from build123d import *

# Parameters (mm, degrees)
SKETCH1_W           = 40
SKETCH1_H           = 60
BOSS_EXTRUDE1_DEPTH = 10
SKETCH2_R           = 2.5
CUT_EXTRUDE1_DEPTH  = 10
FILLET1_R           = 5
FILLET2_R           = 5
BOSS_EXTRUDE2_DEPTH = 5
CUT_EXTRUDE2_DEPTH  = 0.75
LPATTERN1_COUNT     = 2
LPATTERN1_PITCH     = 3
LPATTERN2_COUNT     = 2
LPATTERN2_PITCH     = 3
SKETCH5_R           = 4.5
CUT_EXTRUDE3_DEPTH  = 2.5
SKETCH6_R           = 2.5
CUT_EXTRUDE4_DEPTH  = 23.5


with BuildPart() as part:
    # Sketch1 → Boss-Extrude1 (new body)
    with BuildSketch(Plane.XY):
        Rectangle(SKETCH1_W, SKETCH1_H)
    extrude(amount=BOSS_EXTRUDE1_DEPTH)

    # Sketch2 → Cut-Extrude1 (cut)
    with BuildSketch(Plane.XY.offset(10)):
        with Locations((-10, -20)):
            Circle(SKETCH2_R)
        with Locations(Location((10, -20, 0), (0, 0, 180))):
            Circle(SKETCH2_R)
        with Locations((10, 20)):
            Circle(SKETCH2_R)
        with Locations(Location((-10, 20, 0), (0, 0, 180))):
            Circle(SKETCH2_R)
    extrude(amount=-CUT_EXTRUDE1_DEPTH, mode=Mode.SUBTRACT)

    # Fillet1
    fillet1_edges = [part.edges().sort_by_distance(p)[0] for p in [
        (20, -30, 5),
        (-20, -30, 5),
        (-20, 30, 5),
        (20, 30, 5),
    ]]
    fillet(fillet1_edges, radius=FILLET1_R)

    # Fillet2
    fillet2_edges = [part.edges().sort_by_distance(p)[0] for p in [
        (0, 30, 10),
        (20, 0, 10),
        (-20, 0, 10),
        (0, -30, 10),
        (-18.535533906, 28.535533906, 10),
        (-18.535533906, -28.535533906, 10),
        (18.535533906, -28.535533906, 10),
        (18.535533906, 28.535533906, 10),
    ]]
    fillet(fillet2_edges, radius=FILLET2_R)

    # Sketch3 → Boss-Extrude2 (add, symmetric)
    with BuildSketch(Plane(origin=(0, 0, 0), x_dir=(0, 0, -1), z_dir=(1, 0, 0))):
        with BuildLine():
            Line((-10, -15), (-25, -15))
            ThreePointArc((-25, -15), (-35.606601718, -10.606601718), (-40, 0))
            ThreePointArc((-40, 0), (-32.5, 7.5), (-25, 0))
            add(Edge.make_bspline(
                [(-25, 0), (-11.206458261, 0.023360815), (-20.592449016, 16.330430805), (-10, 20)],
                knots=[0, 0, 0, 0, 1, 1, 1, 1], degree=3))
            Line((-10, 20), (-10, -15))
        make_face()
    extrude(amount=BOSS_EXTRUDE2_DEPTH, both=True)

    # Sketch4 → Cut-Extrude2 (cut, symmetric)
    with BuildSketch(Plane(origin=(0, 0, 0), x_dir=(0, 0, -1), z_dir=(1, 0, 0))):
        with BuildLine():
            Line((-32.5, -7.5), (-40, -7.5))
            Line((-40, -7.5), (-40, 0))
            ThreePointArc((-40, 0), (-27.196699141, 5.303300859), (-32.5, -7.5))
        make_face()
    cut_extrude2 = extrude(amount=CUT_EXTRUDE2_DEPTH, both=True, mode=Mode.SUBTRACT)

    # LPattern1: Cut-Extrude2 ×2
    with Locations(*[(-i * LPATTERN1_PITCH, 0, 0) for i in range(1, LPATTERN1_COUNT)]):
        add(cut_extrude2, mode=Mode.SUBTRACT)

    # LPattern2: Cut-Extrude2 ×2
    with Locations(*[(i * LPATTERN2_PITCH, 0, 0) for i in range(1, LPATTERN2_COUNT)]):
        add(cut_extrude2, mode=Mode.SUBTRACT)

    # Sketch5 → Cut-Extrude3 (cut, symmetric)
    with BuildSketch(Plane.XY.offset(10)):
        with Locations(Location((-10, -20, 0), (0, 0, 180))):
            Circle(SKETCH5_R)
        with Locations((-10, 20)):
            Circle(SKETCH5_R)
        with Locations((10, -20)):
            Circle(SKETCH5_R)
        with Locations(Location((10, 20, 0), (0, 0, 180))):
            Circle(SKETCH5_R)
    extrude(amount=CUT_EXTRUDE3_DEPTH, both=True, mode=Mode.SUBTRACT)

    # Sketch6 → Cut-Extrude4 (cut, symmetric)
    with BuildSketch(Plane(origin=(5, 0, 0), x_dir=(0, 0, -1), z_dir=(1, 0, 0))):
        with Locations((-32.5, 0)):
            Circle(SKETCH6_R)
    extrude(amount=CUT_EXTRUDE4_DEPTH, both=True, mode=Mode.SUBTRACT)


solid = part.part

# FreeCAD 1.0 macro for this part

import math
import FreeCAD as App
import Part
import Sketcher
from FreeCAD import Vector
Q = App.Units.Quantity


def edges_at(feature, points):
    """Names of the edges that pass closest to the given points."""
    edges = feature.Shape.Edges
    near = lambda p: min(range(len(edges)), key=lambda i: edges[i].distToShape(Part.Vertex(*p))[0])
    return sorted({f"Edge{near(p) + 1}" for p in points})


def add_polygon(sketch, points):
    """Adds a closed chain of lines whose ends are joined by coincident constraints."""
    first, n = sketch.GeometryCount, len(points)
    for a, b in zip(points, points[1:] + points[:1]):
        sketch.addGeometry(Part.LineSegment(App.Vector(*a, 0), App.Vector(*b, 0)), False)
    for i in range(n):
        sketch.addConstraint(Sketcher.Constraint("Coincident", first + i, 2, first + (i + 1) % n, 1))

doc = App.newDocument("Part")
body = doc.addObject("PartDesign::Body", "Body")

sketch1 = body.newObject("Sketcher::SketchObject", "Sketch")
sketch1.AttachmentSupport = (doc.getObject("XY_Plane"), [""])
sketch1.MapMode = "FlatFace"
add_polygon(sketch1, [(-20, 30), (-20, -30), (20, -30), (20, 30)])
sketch1.addConstraint([
    Sketcher.Constraint("Vertical", 0),
    Sketcher.Constraint("Horizontal", 1),
    Sketcher.Constraint("Vertical", 2),
    Sketcher.Constraint("Horizontal", 3),
    Sketcher.Constraint("Symmetric", 0, 2, 2, 2, -1, 1),
    Sketcher.Constraint("DistanceX", 1, 1, 1, 2, Q("40 mm")),
    Sketcher.Constraint("DistanceY", 0, 2, 0, 1, Q("60 mm")),
])
pad1 = body.newObject("PartDesign::Pad", "Pad")
pad1.Profile = sketch1
pad1.Length = 10

sketch2 = body.newObject("Sketcher::SketchObject", "Sketch001")
sketch2.AttachmentSupport = (doc.getObject("XY_Plane"), [""])
sketch2.MapMode = "FlatFace"
sketch2.AttachmentOffset = App.Placement(Vector(0, 0, 10), App.Rotation())
sketch2.addGeometry([
    Part.Circle(Vector(-10, -20, 0), Vector(0, 0, 1), 2.5),
    Part.Circle(Vector(10, -20, 0), Vector(0, 0, 1), 2.5),
    Part.Circle(Vector(10, 20, 0), Vector(0, 0, 1), 2.5),
    Part.Circle(Vector(-10, 20, 0), Vector(0, 0, 1), 2.5),
], False)
sketch2.addConstraint([
    Sketcher.Constraint("Equal", 0, 1),
    Sketcher.Constraint("Equal", 1, 2),
    Sketcher.Constraint("Equal", 2, 3),
    Sketcher.Constraint("Symmetric", 0, 3, 2, 3, -1, 1),
    Sketcher.Constraint("Symmetric", 1, 3, 3, 3, -1, 1),
    Sketcher.Constraint("Symmetric", 0, 3, 1, 3, -2),
    Sketcher.Constraint("Diameter", 0, Q("5 mm")),
    Sketcher.Constraint("DistanceX", 0, 3, -1, 1, Q("10 mm")),
    Sketcher.Constraint("DistanceY", 0, 3, -1, 1, Q("20 mm")),
])
pocket1 = body.newObject("PartDesign::Pocket", "Pocket")
pocket1.Profile = sketch2
pocket1.Length = 10
doc.recompute()

fillet = body.newObject("PartDesign::Fillet", "Fillet")
fillet.Base = (pocket1, edges_at(pocket1, [
    (20, -30, 5),
    (-20, -30, 5),
    (-20, 30, 5),
    (20, 30, 5),
]))
fillet.Radius = 5
doc.recompute()

fillet2 = body.newObject("PartDesign::Fillet", "Fillet001")
fillet2.Base = (fillet, edges_at(fillet, [
    (0, 30, 10),
    (20, 0, 10),
    (-20, 0, 10),
    (0, -30, 10),
    (-18.536, 28.536, 10),
    (-18.536, -28.536, 10),
    (18.536, -28.536, 10),
    (18.536, 28.536, 10),
]))
fillet2.Radius = 5

sketch3 = body.newObject("Sketcher::SketchObject", "Sketch002")
sketch3.AttachmentSupport = (doc.getObject("YZ_Plane"), [""])
sketch3.MapMode = "FlatFace"
sketch3.addGeometry([
    Part.LineSegment(Vector(-15, 25, 0), Vector(-15, 10, 0)),
    Part.LineSegment(Vector(-15, 10, 0), Vector(20, 10, 0)),
    Part.BSplineCurve([Vector(0, 25, 0), Vector(0.023361, 11.206458, 0), Vector(16.330431, 20.592449, 0), Vector(20, 10, 0)], [4, 4], [0, 1], False, 3, [1, 1, 1, 1], False),
    Part.ArcOfCircle(Part.Circle(Vector(0, 32.5, 0), Vector(0, 0, 1), 7.5), math.radians(-90), math.radians(90)),
    Part.ArcOfCircle(Part.Circle(Vector(0, 25, 0), Vector(0, 0, 1), 15), math.radians(90), math.radians(180)),
], False)
sketch3.addConstraint([
    Sketcher.Constraint("Block", 2),
    Sketcher.Constraint("Coincident", 0, 2, 1, 1),
    Sketcher.Constraint("Coincident", 1, 2, 2, 2),
    Sketcher.Constraint("Coincident", 2, 1, 3, 1),
    Sketcher.Constraint("Tangent", 3, 2, 4, 1),
    Sketcher.Constraint("Tangent", 4, 2, 0, 1),
    Sketcher.Constraint("Vertical", 0),
    Sketcher.Constraint("Horizontal", 1),
    Sketcher.Constraint("PointOnObject", 3, 3, -2),
    Sketcher.Constraint("PointOnObject", 4, 3, -2),
    Sketcher.Constraint("Radius", 4, Q("15 mm")),
    Sketcher.Constraint("Radius", 3, Q("7.5 mm")),
])
pad2 = body.newObject("PartDesign::Pad", "Pad001")
pad2.Profile = sketch3
pad2.Length = 10
pad2.Midplane = True

sketch4 = body.newObject("Sketcher::SketchObject", "Sketch003")
sketch4.AttachmentSupport = (doc.getObject("YZ_Plane"), [""])
sketch4.MapMode = "FlatFace"
sketch4.addGeometry([
    Part.LineSegment(Vector(-8, 40, 0), Vector(-8, 32, 0)),
    Part.ArcOfCircle(Part.Circle(Vector(0, 32, 0), Vector(0, 0, 1), 8), math.radians(180), math.radians(450)),
    Part.LineSegment(Vector(0, 40, 0), Vector(-8, 40, 0)),
], False)
sketch4.addConstraint([
    Sketcher.Constraint("Tangent", 0, 2, 1, 1),
    Sketcher.Constraint("Tangent", 1, 2, 2, 1),
    Sketcher.Constraint("Coincident", 2, 2, 0, 1),
    Sketcher.Constraint("Vertical", 0),
    Sketcher.Constraint("Horizontal", 2),
    Sketcher.Constraint("PointOnObject", 1, 3, -2),
    Sketcher.Constraint("Radius", 1, Q("7.5 mm")),
    Sketcher.Constraint("DistanceY", -1, 1, 1, 2, Q("40 mm")),
])
pocket2 = body.newObject("PartDesign::Pocket", "Pocket001")
pocket2.Profile = sketch4
pocket2.Length = 1.5
pocket2.Midplane = True
doc.recompute()

linearpattern = body.newObject("PartDesign::LinearPattern", "LinearPattern")
linearpattern.Originals = [pocket2]
linearpattern.Direction = (doc.getObject("X_Axis"), [""])
linearpattern.Mode = "offset"
linearpattern.Offset = 3
linearpattern.Occurrences = 2
linearpattern.Reversed = True
body.Tip = linearpattern
doc.recompute()

linearpattern2 = body.newObject("PartDesign::LinearPattern", "LinearPattern001")
linearpattern2.Originals = [pocket2]
linearpattern2.Direction = (doc.getObject("X_Axis"), [""])
linearpattern2.Mode = "offset"
linearpattern2.Offset = 3
linearpattern2.Occurrences = 2
body.Tip = linearpattern2

sketch5 = body.newObject("Sketcher::SketchObject", "Sketch004")
sketch5.AttachmentSupport = (doc.getObject("XY_Plane"), [""])
sketch5.MapMode = "FlatFace"
sketch5.AttachmentOffset = App.Placement(Vector(0, 0, 10), App.Rotation())
sketch5.addGeometry([
    Part.Circle(Vector(-10, -20, 0), Vector(0, 0, 1), 4.5),
    Part.Circle(Vector(-10, 20, 0), Vector(0, 0, 1), 4.5),
    Part.Circle(Vector(10, -20, 0), Vector(0, 0, 1), 4.5),
    Part.Circle(Vector(10, 20, 0), Vector(0, 0, 1), 4.5),
], False)
sketch5.addConstraint([
    Sketcher.Constraint("Equal", 0, 1),
    Sketcher.Constraint("Equal", 1, 2),
    Sketcher.Constraint("Equal", 2, 3),
    Sketcher.Constraint("Symmetric", 1, 3, 2, 3, -1, 1),
    Sketcher.Constraint("Symmetric", 0, 3, 3, 3, -1, 1),
    Sketcher.Constraint("Symmetric", 0, 3, 2, 3, -2),
    Sketcher.Constraint("Diameter", 0, Q("9 mm")),
    Sketcher.Constraint("DistanceX", 0, 3, -1, 1, Q("10 mm")),
    Sketcher.Constraint("DistanceY", 0, 3, -1, 1, Q("20 mm")),
])
pocket3 = body.newObject("PartDesign::Pocket", "Pocket002")
pocket3.Profile = sketch5
pocket3.Length = 5
pocket3.Midplane = True

sketch6 = body.newObject("Sketcher::SketchObject", "Sketch005")
sketch6.AttachmentSupport = (doc.getObject("YZ_Plane"), [""])
sketch6.MapMode = "FlatFace"
sketch6.AttachmentOffset = App.Placement(Vector(0, 0, 5), App.Rotation())
sketch6.addGeometry(Part.Circle(Vector(0, 32.5, 0), Vector(0, 0, 1), 2.5), False)
sketch6.addConstraint([
    Sketcher.Constraint("PointOnObject", 0, 3, -2),
    Sketcher.Constraint("Diameter", 0, Q("5 mm")),
    Sketcher.Constraint("DistanceY", -1, 1, 0, 3, Q("32.5 mm")),
])
pocket4 = body.newObject("PartDesign::Pocket", "Pocket003")
pocket4.Profile = sketch6
pocket4.Length = 47
pocket4.Midplane = True

doc.recompute()
